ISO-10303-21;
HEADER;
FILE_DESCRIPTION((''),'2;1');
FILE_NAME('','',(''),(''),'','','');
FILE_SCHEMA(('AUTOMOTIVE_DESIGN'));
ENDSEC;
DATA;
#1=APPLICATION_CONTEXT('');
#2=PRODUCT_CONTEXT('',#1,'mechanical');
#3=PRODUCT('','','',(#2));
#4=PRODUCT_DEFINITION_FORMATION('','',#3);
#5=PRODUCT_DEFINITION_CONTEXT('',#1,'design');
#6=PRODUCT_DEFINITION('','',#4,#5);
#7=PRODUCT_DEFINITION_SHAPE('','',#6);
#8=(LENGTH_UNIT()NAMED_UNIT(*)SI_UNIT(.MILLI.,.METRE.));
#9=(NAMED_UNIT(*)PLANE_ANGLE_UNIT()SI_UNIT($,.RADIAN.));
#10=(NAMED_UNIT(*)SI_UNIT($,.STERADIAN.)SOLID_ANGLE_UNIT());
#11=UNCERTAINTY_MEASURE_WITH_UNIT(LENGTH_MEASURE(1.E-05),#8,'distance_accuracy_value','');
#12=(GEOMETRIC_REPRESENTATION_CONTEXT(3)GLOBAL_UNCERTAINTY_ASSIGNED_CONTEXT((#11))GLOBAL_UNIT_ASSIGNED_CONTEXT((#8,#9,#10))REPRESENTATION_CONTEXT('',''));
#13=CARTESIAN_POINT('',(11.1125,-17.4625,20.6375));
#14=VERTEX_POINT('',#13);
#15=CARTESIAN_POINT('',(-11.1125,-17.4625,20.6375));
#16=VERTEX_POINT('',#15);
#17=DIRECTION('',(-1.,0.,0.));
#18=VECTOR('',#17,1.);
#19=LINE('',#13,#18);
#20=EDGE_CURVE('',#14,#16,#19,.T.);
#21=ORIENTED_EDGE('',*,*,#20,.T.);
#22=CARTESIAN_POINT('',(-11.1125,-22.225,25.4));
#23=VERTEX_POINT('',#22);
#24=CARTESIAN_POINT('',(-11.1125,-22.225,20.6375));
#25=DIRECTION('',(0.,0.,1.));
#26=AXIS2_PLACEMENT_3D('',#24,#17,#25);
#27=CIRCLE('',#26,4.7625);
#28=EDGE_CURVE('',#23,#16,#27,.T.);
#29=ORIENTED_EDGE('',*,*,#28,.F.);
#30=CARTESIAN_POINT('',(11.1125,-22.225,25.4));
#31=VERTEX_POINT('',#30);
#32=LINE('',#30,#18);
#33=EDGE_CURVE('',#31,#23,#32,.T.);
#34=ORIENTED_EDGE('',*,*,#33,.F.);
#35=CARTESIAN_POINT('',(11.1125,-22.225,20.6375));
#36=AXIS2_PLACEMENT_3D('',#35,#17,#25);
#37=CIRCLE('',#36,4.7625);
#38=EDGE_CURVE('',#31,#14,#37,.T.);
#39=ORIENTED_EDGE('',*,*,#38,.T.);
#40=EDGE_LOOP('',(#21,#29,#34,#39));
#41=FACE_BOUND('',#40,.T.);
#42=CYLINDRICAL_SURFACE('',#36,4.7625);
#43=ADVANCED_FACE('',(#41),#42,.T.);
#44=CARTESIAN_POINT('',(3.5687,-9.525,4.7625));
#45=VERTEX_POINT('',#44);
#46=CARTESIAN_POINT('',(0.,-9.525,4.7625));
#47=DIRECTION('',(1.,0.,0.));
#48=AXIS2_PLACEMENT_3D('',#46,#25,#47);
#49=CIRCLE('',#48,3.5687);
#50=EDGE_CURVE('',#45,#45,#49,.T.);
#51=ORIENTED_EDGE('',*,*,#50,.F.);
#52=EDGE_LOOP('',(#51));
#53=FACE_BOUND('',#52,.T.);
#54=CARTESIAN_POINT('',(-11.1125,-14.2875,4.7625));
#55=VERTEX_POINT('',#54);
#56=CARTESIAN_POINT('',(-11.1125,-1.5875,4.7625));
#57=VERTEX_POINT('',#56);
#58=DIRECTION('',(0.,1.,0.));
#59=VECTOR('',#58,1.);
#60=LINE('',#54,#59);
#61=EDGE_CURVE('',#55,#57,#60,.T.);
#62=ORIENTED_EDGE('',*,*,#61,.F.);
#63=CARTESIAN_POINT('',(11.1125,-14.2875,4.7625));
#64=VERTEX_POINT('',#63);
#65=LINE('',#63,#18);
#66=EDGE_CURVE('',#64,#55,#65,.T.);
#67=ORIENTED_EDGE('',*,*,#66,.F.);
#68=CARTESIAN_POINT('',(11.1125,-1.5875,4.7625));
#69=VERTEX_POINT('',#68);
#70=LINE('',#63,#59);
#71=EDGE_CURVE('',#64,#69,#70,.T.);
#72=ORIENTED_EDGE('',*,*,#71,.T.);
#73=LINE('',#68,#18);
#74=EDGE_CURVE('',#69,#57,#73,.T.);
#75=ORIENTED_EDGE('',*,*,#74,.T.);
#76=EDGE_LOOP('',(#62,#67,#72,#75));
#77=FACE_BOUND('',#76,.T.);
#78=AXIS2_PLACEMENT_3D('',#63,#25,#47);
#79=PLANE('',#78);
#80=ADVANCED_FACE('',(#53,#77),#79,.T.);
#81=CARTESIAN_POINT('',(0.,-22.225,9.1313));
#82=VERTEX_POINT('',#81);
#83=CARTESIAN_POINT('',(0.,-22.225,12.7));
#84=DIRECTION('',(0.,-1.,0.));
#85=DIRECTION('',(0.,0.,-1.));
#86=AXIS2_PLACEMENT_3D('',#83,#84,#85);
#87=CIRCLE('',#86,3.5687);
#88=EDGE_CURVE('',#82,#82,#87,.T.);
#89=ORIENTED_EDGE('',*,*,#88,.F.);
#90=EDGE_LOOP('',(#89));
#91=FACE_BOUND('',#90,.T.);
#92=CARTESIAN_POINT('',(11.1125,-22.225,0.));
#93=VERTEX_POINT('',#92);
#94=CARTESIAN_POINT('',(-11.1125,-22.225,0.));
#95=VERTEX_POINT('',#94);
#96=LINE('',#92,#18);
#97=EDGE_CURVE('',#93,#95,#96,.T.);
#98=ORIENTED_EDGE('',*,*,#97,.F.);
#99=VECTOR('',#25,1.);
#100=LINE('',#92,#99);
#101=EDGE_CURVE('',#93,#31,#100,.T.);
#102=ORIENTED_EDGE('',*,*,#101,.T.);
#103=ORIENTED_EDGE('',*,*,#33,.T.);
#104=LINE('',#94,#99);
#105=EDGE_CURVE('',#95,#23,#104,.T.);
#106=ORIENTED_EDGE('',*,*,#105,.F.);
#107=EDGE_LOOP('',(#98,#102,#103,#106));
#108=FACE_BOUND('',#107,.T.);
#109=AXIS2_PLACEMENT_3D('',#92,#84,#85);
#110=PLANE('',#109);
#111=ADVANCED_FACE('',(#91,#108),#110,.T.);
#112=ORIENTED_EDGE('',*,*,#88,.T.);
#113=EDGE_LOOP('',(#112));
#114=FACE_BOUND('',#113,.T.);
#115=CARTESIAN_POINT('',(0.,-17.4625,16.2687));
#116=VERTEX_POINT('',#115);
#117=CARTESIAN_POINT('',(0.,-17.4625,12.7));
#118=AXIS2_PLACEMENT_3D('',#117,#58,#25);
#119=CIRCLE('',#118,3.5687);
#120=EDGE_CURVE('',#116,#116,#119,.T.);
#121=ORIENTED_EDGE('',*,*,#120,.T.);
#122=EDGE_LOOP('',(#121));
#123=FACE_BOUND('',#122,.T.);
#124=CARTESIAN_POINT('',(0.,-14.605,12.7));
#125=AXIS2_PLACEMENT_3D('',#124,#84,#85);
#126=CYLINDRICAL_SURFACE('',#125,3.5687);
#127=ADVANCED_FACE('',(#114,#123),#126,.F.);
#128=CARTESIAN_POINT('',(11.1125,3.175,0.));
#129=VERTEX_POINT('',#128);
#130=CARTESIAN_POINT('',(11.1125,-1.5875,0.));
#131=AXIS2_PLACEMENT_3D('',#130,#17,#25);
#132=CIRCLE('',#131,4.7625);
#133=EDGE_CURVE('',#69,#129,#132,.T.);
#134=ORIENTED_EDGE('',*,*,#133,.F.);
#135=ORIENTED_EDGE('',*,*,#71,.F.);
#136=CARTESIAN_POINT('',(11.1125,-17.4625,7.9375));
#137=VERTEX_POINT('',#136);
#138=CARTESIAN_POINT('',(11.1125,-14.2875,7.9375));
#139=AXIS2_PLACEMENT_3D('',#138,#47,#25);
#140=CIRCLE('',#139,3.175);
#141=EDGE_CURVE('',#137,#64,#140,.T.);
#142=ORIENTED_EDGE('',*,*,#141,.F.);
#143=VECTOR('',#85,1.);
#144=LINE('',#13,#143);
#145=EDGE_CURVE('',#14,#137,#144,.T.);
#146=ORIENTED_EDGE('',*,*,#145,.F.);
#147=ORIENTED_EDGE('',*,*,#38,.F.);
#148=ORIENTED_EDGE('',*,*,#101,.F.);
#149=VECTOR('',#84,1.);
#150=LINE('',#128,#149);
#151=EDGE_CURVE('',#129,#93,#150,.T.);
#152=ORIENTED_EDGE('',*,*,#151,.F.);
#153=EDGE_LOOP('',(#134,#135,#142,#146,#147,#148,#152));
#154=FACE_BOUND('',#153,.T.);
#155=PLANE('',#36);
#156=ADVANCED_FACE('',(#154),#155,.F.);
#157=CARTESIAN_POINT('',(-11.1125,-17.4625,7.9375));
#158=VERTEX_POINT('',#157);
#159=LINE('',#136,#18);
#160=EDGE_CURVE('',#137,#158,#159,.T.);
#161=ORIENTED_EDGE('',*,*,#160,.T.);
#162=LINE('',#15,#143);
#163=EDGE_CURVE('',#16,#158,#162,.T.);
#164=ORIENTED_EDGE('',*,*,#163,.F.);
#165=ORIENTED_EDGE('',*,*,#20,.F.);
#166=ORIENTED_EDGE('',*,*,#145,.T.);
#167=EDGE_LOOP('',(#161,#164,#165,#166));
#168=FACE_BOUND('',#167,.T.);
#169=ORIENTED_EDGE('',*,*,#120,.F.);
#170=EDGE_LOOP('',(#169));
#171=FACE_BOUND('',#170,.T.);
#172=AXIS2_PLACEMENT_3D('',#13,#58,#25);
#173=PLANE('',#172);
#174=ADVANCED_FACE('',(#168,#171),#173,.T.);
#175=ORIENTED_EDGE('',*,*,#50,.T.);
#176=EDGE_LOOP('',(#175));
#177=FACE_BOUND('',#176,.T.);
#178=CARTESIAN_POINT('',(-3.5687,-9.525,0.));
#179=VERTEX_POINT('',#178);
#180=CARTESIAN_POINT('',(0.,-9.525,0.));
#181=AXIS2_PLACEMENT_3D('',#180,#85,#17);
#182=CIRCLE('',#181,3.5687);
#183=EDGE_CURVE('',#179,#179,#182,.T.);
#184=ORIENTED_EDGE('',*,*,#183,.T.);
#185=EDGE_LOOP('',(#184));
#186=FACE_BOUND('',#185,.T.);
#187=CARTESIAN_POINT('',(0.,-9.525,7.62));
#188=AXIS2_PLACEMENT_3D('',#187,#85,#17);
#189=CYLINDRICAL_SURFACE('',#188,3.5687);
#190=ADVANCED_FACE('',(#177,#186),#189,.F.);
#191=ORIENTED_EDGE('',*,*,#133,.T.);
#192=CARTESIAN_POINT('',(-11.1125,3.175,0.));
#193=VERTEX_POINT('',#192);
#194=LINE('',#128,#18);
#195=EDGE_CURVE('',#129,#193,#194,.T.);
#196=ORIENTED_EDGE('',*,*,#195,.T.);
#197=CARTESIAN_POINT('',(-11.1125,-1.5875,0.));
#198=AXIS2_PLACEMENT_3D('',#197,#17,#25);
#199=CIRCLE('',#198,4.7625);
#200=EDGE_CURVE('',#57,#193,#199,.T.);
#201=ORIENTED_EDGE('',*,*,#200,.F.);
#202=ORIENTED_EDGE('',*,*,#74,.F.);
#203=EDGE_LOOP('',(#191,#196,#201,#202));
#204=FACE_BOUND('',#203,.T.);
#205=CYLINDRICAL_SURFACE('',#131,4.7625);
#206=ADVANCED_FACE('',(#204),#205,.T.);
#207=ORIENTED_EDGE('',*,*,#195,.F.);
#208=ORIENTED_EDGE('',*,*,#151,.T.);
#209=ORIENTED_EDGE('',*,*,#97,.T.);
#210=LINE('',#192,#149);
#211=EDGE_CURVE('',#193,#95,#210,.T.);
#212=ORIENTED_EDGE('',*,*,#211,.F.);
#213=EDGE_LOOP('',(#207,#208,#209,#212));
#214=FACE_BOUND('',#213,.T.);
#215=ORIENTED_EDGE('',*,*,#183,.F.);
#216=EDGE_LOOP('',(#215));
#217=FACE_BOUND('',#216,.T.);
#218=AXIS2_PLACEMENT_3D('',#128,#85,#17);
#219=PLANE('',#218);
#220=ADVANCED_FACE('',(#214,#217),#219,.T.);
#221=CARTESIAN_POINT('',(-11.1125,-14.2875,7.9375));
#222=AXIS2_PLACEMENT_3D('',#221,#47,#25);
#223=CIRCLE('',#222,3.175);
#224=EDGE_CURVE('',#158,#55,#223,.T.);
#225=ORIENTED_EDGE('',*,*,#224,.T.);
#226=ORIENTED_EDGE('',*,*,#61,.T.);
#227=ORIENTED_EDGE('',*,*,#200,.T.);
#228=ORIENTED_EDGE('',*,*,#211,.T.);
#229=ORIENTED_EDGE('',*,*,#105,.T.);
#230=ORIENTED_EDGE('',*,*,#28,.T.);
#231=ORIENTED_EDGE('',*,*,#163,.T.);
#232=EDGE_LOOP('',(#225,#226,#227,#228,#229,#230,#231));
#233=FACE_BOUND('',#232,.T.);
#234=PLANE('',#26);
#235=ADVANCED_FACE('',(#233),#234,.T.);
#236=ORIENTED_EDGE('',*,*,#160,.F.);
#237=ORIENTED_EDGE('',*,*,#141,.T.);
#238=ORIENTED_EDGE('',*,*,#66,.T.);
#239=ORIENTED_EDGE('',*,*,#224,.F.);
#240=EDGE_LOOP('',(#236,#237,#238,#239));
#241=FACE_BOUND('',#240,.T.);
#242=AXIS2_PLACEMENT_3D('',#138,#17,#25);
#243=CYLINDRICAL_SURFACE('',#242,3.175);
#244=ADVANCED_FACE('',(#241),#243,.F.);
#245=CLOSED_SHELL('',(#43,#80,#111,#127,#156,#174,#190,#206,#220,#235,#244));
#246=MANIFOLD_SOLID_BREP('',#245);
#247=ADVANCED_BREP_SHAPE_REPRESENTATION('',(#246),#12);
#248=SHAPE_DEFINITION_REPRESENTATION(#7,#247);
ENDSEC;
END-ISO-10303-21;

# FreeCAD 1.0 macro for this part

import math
import FreeCAD as App
import Part
import Sketcher

V = App.Vector
Q = App.Units.Quantity

doc = App.newDocument("Part")
body = doc.addObject("PartDesign::Body", "Body")

sketch1 = doc.addObject("Sketcher::SketchObject", "Sketch")
body.addObject(sketch1)
sketch1.AttachmentSupport = (doc.YZ_Plane, [""])
sketch1.MapMode = "FlatFace"
sketch1.addGeometry([
    Part.LineSegment(V(-22.2, 0, 0), V(-22.2, 25.4, 0)),
    Part.ArcOfCircle(Part.Circle(V(-22.2, 20.6, 0), V(0, 0, 1), 4.8), math.radians(0), math.radians(90)),
    Part.LineSegment(V(-17.5, 20.6, 0), V(-17.5, 7.9, 0)),
    Part.ArcOfCircle(Part.Circle(V(-14.3, 7.9, 0), V(0, 0, 1), 3.2), math.radians(-180), math.radians(-90)),
    Part.LineSegment(V(-14.3, 4.8, 0), V(-1.6, 4.8, 0)),
    Part.ArcOfCircle(Part.Circle(V(-1.6, 0, 0), V(0, 0, 1), 4.8), math.radians(0), math.radians(90)),
    Part.LineSegment(V(3.2, 0, 0), V(-22.2, 0, 0)),
], False)
sketch1.addConstraint([
    Sketcher.Constraint("Coincident", 0, 2, 1, 2),
    Sketcher.Constraint("Tangent", 1, 1, 2, 1),
    Sketcher.Constraint("Tangent", 2, 2, 3, 1),
    Sketcher.Constraint("Tangent", 3, 2, 4, 1),
    Sketcher.Constraint("Tangent", 4, 2, 5, 2),
    Sketcher.Constraint("Coincident", 5, 1, 6, 1),
    Sketcher.Constraint("Coincident", 6, 2, 0, 1),
    Sketcher.Constraint("Vertical", 0),
    Sketcher.Constraint("Vertical", 2),
    Sketcher.Constraint("Horizontal", 4),
    Sketcher.Constraint("Horizontal", 6),
    Sketcher.Constraint("Equal", 1, 5),
    Sketcher.Constraint("PointOnObject", 5, 3, -1),
    Sketcher.Constraint("PointOnObject", 5, 1, -1),
    Sketcher.Constraint("Vertical", 1, 3, 0, 2),
    Sketcher.Constraint("Equal", 6, 0),
    Sketcher.Constraint("DistanceX", 6, 2, 6, 1, Q("1 in")),
    Sketcher.Constraint("DistanceX", 4, 1, 4, 2, Q("0.5 in")),
    Sketcher.Constraint("Radius", 1, Q("0.1875 in")),
    Sketcher.Constraint("DistanceX", 1, 3, -1, 1, Q("0.875 in")),
])
pad1 = doc.addObject("PartDesign::Pad", "Pad")
body.addObject(pad1)
pad1.Profile = sketch1
pad1.Length = Q("0.875 in")
pad1.Midplane = True

sketch2 = doc.addObject("Sketcher::SketchObject", "Sketch001")
body.addObject(sketch2)
sketch2.AttachmentSupport = (doc.XZ_Plane, [""])
sketch2.MapMode = "FlatFace"
sketch2.AttachmentOffset = App.Placement(V(0, 0, 0.875 * 25.4), App.Rotation())
sketch2.addGeometry(Part.Circle(V(0, 12.7, 0), V(0, 0, 1), 3.6), False)
sketch2.addConstraint([
    Sketcher.Constraint("PointOnObject", 0, 3, -2),
    Sketcher.Constraint("Diameter", 0, Q("0.281 in")),
    Sketcher.Constraint("DistanceY", -1, 1, 0, 3, Q("0.5 in")),
])
pocket1 = doc.addObject("PartDesign::Pocket", "Pocket")
body.addObject(pocket1)
pocket1.Profile = sketch2
pocket1.Length = Q("0.3 in")

sketch3 = doc.addObject("Sketcher::SketchObject", "Sketch002")
body.addObject(sketch3)
sketch3.AttachmentSupport = (doc.XY_Plane, [""])
sketch3.MapMode = "FlatFace"
sketch3.addGeometry(Part.Circle(V(0, -9.5, 0), V(0, 0, 1), 3.6), False)
sketch3.addConstraint([
    Sketcher.Constraint("PointOnObject", 0, 3, -2),
    Sketcher.Constraint("Diameter", 0, Q("0.281 in")),
    Sketcher.Constraint("DistanceY", 0, 3, -1, 1, Q("0.375 in")),
])
pocket2 = doc.addObject("PartDesign::Pocket", "Pocket001")
body.addObject(pocket2)
pocket2.Profile = sketch3
pocket2.Length = Q("0.3 in")
pocket2.Reversed = True

doc.recompute()
